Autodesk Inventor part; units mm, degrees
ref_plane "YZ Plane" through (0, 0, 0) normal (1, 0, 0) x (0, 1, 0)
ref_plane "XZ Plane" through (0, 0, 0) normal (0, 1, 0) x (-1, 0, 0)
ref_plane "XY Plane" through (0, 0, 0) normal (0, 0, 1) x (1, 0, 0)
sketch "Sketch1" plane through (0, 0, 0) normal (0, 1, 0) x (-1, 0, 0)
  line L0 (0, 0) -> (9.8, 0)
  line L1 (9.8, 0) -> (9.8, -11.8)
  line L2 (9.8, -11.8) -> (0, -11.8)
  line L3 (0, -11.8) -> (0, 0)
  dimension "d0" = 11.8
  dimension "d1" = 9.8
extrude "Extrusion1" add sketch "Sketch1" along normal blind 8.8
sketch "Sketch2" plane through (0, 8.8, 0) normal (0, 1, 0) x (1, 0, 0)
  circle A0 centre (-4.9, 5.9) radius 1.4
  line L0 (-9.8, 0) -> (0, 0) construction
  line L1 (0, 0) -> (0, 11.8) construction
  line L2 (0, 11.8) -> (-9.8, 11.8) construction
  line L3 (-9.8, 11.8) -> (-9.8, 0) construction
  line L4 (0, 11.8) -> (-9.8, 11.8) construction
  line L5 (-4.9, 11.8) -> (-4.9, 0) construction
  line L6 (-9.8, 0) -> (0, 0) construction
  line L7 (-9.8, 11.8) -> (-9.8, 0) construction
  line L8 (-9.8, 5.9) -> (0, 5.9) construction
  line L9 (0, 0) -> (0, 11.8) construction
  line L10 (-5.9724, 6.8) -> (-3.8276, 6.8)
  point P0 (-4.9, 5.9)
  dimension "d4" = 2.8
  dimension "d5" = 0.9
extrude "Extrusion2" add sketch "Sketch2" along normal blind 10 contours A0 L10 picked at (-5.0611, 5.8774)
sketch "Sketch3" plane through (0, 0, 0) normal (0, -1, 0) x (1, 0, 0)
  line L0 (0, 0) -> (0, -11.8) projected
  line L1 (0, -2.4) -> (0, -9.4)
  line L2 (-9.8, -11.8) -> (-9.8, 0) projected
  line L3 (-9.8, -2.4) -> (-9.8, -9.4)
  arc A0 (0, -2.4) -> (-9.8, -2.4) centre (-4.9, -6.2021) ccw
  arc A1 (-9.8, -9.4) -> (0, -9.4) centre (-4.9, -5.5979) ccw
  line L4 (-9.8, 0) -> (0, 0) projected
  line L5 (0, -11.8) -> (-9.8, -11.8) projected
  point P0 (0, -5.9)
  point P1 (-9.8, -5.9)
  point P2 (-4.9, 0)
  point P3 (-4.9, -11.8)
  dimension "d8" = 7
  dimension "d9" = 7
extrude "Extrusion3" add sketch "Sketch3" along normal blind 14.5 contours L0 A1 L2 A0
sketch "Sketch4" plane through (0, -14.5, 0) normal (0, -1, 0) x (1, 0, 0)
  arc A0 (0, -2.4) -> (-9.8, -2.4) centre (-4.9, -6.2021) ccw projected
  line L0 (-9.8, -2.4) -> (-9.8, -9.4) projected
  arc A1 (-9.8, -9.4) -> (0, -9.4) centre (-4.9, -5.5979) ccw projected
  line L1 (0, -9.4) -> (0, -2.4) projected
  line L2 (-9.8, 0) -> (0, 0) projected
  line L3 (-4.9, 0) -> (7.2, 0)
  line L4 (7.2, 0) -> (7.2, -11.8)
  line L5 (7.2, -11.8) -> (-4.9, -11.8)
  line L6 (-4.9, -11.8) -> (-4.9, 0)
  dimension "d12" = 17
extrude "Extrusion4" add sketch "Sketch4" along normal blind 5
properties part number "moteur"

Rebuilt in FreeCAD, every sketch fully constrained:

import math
import FreeCAD as App
import Part
import Sketcher
Q = App.Units.Quantity

doc = App.newDocument("Part")
body = doc.addObject("PartDesign::Body", "Body")

sketch1 = body.newObject("Sketcher::SketchObject", "Sketch")
sketch1.AttachmentSupport = (doc.getObject("XZ_Plane"), [""])
sketch1.MapMode = "FlatFace"
sketch1.addGeometry(Part.LineSegment(App.Vector(-10, 0, 0), App.Vector(0, 0, 0)), False)
sketch1.addGeometry(Part.LineSegment(App.Vector(0, 0, 0), App.Vector(0, -12, 0)), False)
sketch1.addGeometry(Part.LineSegment(App.Vector(0, -12, 0), App.Vector(-10, -12, 0)), False)
sketch1.addGeometry(Part.LineSegment(App.Vector(-10, -12, 0), App.Vector(-10, 0, 0)), False)
sketch1.addConstraint(Sketcher.Constraint("Coincident", 0, 2, 1, 1))
sketch1.addConstraint(Sketcher.Constraint("Coincident", 1, 2, 2, 1))
sketch1.addConstraint(Sketcher.Constraint("Coincident", 2, 2, 3, 1))
sketch1.addConstraint(Sketcher.Constraint("Coincident", 3, 2, 0, 1))
sketch1.addConstraint(Sketcher.Constraint("Horizontal", 0))
sketch1.addConstraint(Sketcher.Constraint("Vertical", 1))
sketch1.addConstraint(Sketcher.Constraint("Horizontal", 2))
sketch1.addConstraint(Sketcher.Constraint("Vertical", 3))
sketch1.addConstraint(Sketcher.Constraint("Coincident", 0, 2, -1, 1))
sketch1.addConstraint(Sketcher.Constraint("DistanceX", 0, 1, 0, 2, Q("9.8 mm")))
sketch1.addConstraint(Sketcher.Constraint("DistanceY", 1, 2, 1, 1, Q("11.8 mm")))
pad1 = body.newObject("PartDesign::Pad", "Pad")
pad1.Profile = sketch1
pad1.Length = 8.8
pad1.Reversed = True

sketch2 = body.newObject("Sketcher::SketchObject", "Sketch001")
sketch2.AttachmentSupport = (doc.getObject("XZ_Plane"), [""])
sketch2.MapMode = "FlatFace"
sketch2.AttachmentOffset = App.Placement(App.Vector(0, 0, -8.8), App.Rotation())
sketch2.addGeometry(Part.ArcOfCircle(Part.Circle(App.Vector(-4.9, -5.9, 0), App.Vector(0, 0, 1), 1.4), math.radians(-40), math.radians(220)), False)
sketch2.addGeometry(Part.LineSegment(App.Vector(-6, -6.8, 0), App.Vector(-3.8, -6.8, 0)), False)
sketch2.addConstraint(Sketcher.Constraint("Coincident", 0, 1, 1, 2))
sketch2.addConstraint(Sketcher.Constraint("Coincident", 1, 1, 0, 2))
sketch2.addConstraint(Sketcher.Constraint("Horizontal", 1))
sketch2.addConstraint(Sketcher.Constraint("Radius", 0, Q("1.4 mm")))
sketch2.addConstraint(Sketcher.Constraint("DistanceY", 0, 1, 0, 3, Q("0.9 mm")))
sketch2.addConstraint(Sketcher.Constraint("DistanceX", 0, 3, -1, 1, Q("4.9 mm")))
sketch2.addConstraint(Sketcher.Constraint("DistanceY", 0, 3, -1, 1, Q("5.9 mm")))
pad2 = body.newObject("PartDesign::Pad", "Pad001")
pad2.Profile = sketch2
pad2.Length = 10
pad2.Reversed = True

sketch3 = body.newObject("Sketcher::SketchObject", "Sketch002")
sketch3.AttachmentSupport = (doc.getObject("XZ_Plane"), [""])
sketch3.MapMode = "FlatFace"
sketch3.addGeometry(Part.LineSegment(App.Vector(0, -9, 0), App.Vector(0, -2, 0)), False)
sketch3.addGeometry(Part.ArcOfCircle(Part.Circle(App.Vector(-5, -6, 0), App.Vector(0, 0, 1), 6), math.radians(38), math.radians(142)), False)
sketch3.addGeometry(Part.LineSegment(App.Vector(-10, -2, 0), App.Vector(-10, -9, 0)), False)
sketch3.addGeometry(Part.ArcOfCircle(Part.Circle(App.Vector(-5, -6, 0), App.Vector(0, 0, 1), 6), math.radians(-142), math.radians(-38)), False)
sketch3.addConstraint(Sketcher.Constraint("Coincident", 0, 2, 1, 1))
sketch3.addConstraint(Sketcher.Constraint("Coincident", 1, 2, 2, 1))
sketch3.addConstraint(Sketcher.Constraint("Coincident", 2, 2, 3, 1))
sketch3.addConstraint(Sketcher.Constraint("Coincident", 3, 2, 0, 1))
sketch3.addConstraint(Sketcher.Constraint("Vertical", 0))
sketch3.addConstraint(Sketcher.Constraint("Vertical", 2))
sketch3.addConstraint(Sketcher.Constraint("Equal", 1, 3))
sketch3.addConstraint(Sketcher.Constraint("PointOnObject", 0, 2, -2))
sketch3.addConstraint(Sketcher.Constraint("Horizontal", 0, 2, 1, 2))
sketch3.addConstraint(Sketcher.Constraint("Horizontal", 2, 2, 3, 2))
sketch3.addConstraint(Sketcher.Constraint("DistanceY", 0, 1, 0, 2, Q("7 mm")))
sketch3.addConstraint(Sketcher.Constraint("Radius", 1, Q("6.202 mm")))
sketch3.addConstraint(Sketcher.Constraint("DistanceX", 1, 3, -1, 1, Q("4.9 mm")))
sketch3.addConstraint(Sketcher.Constraint("DistanceY", 0, 2, -1, 1, Q("2.4 mm")))
pad3 = body.newObject("PartDesign::Pad", "Pad002")
pad3.Profile = sketch3
pad3.Length = 14.5

sketch4 = body.newObject("Sketcher::SketchObject", "Sketch003")
sketch4.AttachmentSupport = (doc.getObject("XZ_Plane"), [""])
sketch4.MapMode = "FlatFace"
sketch4.AttachmentOffset = App.Placement(App.Vector(0, 0, 14.5), App.Rotation())
sketch4.addGeometry(Part.LineSegment(App.Vector(-5, -12, 0), App.Vector(7, -12, 0)), False)
sketch4.addGeometry(Part.LineSegment(App.Vector(7, -12, 0), App.Vector(7, 0, 0)), False)
sketch4.addGeometry(Part.LineSegment(App.Vector(7, 0, 0), App.Vector(-5, 0, 0)), False)
sketch4.addGeometry(Part.ArcOfCircle(Part.Circle(App.Vector(-5, -6, 0), App.Vector(0, 0, 1), 6), math.radians(90), math.radians(142)), False)
sketch4.addGeometry(Part.LineSegment(App.Vector(-10, -2, 0), App.Vector(-10, -9, 0)), False)
sketch4.addGeometry(Part.ArcOfCircle(Part.Circle(App.Vector(-5, -6, 0), App.Vector(0, 0, 1), 6), math.radians(-142), math.radians(-90)), False)
sketch4.addConstraint(Sketcher.Constraint("Coincident", 0, 2, 1, 1))
sketch4.addConstraint(Sketcher.Constraint("Coincident", 1, 2, 2, 1))
sketch4.addConstraint(Sketcher.Constraint("Tangent", 2, 2, 3, 1))
sketch4.addConstraint(Sketcher.Constraint("Coincident", 3, 2, 4, 1))
sketch4.addConstraint(Sketcher.Constraint("Coincident", 4, 2, 5, 1))
sketch4.addConstraint(Sketcher.Constraint("Tangent", 5, 2, 0, 1))
sketch4.addConstraint(Sketcher.Constraint("Horizontal", 0))
sketch4.addConstraint(Sketcher.Constraint("Vertical", 1))
sketch4.addConstraint(Sketcher.Constraint("Horizontal", 2))
sketch4.addConstraint(Sketcher.Constraint("Vertical", 4))
sketch4.addConstraint(Sketcher.Constraint("Equal", 3, 5))
sketch4.addConstraint(Sketcher.Constraint("PointOnObject", 1, 2, -1))
sketch4.addConstraint(Sketcher.Constraint("Vertical", 3, 3, 5, 3))
sketch4.addConstraint(Sketcher.Constraint("DistanceX", 3, 2, 1, 2, Q("17 mm")))
sketch4.addConstraint(Sketcher.Constraint("DistanceY", 4, 2, 4, 1, Q("7 mm")))
sketch4.addConstraint(Sketcher.Constraint("DistanceX", 0, 1, 0, 2, Q("12.1 mm")))
sketch4.addConstraint(Sketcher.Constraint("DistanceY", 1, 1, 1, 2, Q("11.8 mm")))
sketch4.addConstraint(Sketcher.Constraint("DistanceX", 3, 3, -1, 1, Q("4.9 mm")))
pad4 = body.newObject("PartDesign::Pad", "Pad003")
pad4.Profile = sketch4
pad4.Length = 5

doc.recompute()
